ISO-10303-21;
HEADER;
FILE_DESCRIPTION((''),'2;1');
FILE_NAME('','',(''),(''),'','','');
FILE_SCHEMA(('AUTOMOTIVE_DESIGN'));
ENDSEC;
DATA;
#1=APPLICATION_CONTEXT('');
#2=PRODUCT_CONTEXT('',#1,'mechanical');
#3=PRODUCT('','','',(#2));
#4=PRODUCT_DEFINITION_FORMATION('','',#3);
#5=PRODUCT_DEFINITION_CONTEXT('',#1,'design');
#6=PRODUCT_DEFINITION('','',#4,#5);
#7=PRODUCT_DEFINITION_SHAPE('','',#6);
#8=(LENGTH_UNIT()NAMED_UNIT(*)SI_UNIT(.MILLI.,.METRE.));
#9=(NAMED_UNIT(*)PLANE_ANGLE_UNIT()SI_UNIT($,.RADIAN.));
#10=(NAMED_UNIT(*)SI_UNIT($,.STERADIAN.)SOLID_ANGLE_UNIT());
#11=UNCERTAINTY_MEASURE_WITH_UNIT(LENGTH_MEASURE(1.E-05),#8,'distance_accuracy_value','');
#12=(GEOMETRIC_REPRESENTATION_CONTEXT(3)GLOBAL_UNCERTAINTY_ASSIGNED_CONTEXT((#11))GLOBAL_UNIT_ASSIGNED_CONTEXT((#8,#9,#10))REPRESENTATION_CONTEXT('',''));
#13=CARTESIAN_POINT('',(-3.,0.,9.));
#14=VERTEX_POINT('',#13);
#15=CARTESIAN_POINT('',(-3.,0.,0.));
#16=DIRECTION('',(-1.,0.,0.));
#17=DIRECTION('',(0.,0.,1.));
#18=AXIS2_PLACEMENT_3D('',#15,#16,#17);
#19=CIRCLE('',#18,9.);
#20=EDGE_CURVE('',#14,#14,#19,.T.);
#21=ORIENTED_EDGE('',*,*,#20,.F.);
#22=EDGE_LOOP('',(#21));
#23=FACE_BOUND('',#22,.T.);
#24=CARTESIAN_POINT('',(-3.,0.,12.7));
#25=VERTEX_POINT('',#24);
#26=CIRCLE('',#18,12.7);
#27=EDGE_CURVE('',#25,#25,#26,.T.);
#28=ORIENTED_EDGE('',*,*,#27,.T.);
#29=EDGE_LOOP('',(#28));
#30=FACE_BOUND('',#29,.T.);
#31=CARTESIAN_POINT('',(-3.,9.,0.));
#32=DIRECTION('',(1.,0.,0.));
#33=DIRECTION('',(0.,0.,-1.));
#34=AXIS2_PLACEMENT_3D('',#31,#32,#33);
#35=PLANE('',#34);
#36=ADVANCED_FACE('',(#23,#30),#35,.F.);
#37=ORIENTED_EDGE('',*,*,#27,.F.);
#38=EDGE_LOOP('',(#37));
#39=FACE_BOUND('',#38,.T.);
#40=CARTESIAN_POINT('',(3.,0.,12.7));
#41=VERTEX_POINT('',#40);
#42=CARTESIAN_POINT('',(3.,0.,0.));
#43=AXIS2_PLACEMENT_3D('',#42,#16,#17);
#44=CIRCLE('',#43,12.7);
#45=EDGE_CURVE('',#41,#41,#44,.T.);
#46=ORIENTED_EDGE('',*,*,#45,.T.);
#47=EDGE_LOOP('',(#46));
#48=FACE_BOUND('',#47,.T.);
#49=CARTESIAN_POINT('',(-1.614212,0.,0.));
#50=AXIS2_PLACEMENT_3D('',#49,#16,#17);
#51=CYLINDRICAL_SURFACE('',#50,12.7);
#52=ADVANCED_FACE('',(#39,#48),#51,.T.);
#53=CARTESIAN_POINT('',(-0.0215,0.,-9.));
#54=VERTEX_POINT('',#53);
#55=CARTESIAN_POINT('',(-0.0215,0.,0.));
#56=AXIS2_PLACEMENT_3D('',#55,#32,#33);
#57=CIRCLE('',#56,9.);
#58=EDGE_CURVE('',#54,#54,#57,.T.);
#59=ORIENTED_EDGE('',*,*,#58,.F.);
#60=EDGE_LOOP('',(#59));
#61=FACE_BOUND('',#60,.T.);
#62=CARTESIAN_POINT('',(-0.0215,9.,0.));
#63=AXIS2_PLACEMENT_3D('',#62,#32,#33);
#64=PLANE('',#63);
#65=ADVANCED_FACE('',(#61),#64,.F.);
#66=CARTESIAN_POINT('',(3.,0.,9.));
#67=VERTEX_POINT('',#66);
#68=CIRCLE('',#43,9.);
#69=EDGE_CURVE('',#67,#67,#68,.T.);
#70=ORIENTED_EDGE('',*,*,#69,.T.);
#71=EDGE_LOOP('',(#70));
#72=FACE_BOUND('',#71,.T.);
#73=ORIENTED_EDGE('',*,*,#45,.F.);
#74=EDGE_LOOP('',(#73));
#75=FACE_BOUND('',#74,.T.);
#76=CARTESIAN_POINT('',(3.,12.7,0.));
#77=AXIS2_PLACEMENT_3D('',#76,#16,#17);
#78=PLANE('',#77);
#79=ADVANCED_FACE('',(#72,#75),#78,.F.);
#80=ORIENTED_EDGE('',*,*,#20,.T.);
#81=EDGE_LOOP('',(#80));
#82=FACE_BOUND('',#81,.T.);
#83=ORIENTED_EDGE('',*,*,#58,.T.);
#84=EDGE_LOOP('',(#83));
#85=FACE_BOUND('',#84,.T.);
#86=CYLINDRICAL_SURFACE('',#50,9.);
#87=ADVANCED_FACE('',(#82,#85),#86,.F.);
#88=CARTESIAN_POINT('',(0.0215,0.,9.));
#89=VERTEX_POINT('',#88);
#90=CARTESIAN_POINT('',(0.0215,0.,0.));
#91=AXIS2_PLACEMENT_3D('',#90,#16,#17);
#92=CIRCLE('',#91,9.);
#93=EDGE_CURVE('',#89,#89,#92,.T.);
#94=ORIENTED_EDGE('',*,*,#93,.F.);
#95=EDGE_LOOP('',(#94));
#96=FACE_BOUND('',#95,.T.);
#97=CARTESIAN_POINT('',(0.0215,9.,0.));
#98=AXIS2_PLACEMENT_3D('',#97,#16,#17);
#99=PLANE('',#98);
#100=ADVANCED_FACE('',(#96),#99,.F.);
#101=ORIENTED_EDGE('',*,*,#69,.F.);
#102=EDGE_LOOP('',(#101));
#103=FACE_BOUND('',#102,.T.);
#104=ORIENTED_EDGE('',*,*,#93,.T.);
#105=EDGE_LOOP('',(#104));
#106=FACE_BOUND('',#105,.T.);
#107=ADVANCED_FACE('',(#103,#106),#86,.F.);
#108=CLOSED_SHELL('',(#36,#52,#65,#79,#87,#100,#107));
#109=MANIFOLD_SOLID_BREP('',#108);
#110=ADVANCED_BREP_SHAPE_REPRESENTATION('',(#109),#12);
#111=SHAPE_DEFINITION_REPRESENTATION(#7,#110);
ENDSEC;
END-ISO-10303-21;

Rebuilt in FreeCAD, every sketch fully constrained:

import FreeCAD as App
import Part
import Sketcher
from FreeCAD import Vector

doc = App.newDocument("Part")
body = doc.addObject("PartDesign::Body", "Body")

sketch1 = body.newObject("Sketcher::SketchObject", "Sketch")
sketch1.AttachmentSupport = (doc.getObject("XY_Plane"), [""])
sketch1.MapMode = "FlatFace"
sketch1.addGeometry([
    Part.LineSegment(Vector(-0.021, 9, 0), Vector(-0.021, 0, 0)),
    Part.LineSegment(Vector(-0.021, 0, 0), Vector(0.021, 0, 0)),
    Part.LineSegment(Vector(0.021, 0, 0), Vector(0.021, 9, 0)),
    Part.LineSegment(Vector(0.021, 9, 0), Vector(-0.021, 9, 0)),
], False)
sketch1.addConstraint([
    Sketcher.Constraint("Coincident", 0, 2, 1, 1),
    Sketcher.Constraint("Coincident", 1, 2, 2, 1),
    Sketcher.Constraint("Coincident", 2, 2, 3, 1),
    Sketcher.Constraint("Coincident", 3, 2, 0, 1),
    Sketcher.Constraint("Vertical", 0),
    Sketcher.Constraint("Horizontal", 1),
    Sketcher.Constraint("Vertical", 2),
    Sketcher.Constraint("Horizontal", 3),
    Sketcher.Constraint("Symmetric", 0, 2, 1, 2, -1, 1),
    Sketcher.Constraint("DistanceY", 0, 2, 0, 1, 9.0),
    Sketcher.Constraint("DistanceX", 1, 1, 1, 2, 0.043),
])
revolution = body.newObject("PartDesign::Revolution", "Revolution")
revolution.Profile = sketch1
revolution.ReferenceAxis = (sketch1, ["H_Axis"])
revolution.Angle = 360

sketch2 = body.newObject("Sketcher::SketchObject", "Sketch001")
sketch2.AttachmentSupport = (doc.getObject("XY_Plane"), [""])
sketch2.MapMode = "FlatFace"
sketch2.addGeometry([
    Part.LineSegment(Vector(-3, 12.7, 0), Vector(-3, 9, 0)),
    Part.LineSegment(Vector(-3, 9, 0), Vector(3, 9, 0)),
    Part.LineSegment(Vector(3, 9, 0), Vector(3, 12.7, 0)),
    Part.LineSegment(Vector(3, 12.7, 0), Vector(-3, 12.7, 0)),
], False)
sketch2.addConstraint([
    Sketcher.Constraint("Coincident", 0, 2, 1, 1),
    Sketcher.Constraint("Coincident", 1, 2, 2, 1),
    Sketcher.Constraint("Coincident", 2, 2, 3, 1),
    Sketcher.Constraint("Coincident", 3, 2, 0, 1),
    Sketcher.Constraint("Vertical", 0),
    Sketcher.Constraint("Horizontal", 1),
    Sketcher.Constraint("Vertical", 2),
    Sketcher.Constraint("Horizontal", 3),
    Sketcher.Constraint("DistanceX", 1, 1, 1, 2, 6.0),
    Sketcher.Constraint("DistanceY", 0, 2, 0, 1, 3.7),
    Sketcher.Constraint("DistanceX", 0, 2, -1, 1, 3.0),
    Sketcher.Constraint("DistanceY", -1, 1, 0, 2, 9.0),
])
revolution2 = body.newObject("PartDesign::Revolution", "Revolution001")
revolution2.Profile = sketch2
revolution2.ReferenceAxis = (sketch2, ["H_Axis"])
revolution2.Angle = 360

doc.recompute()
